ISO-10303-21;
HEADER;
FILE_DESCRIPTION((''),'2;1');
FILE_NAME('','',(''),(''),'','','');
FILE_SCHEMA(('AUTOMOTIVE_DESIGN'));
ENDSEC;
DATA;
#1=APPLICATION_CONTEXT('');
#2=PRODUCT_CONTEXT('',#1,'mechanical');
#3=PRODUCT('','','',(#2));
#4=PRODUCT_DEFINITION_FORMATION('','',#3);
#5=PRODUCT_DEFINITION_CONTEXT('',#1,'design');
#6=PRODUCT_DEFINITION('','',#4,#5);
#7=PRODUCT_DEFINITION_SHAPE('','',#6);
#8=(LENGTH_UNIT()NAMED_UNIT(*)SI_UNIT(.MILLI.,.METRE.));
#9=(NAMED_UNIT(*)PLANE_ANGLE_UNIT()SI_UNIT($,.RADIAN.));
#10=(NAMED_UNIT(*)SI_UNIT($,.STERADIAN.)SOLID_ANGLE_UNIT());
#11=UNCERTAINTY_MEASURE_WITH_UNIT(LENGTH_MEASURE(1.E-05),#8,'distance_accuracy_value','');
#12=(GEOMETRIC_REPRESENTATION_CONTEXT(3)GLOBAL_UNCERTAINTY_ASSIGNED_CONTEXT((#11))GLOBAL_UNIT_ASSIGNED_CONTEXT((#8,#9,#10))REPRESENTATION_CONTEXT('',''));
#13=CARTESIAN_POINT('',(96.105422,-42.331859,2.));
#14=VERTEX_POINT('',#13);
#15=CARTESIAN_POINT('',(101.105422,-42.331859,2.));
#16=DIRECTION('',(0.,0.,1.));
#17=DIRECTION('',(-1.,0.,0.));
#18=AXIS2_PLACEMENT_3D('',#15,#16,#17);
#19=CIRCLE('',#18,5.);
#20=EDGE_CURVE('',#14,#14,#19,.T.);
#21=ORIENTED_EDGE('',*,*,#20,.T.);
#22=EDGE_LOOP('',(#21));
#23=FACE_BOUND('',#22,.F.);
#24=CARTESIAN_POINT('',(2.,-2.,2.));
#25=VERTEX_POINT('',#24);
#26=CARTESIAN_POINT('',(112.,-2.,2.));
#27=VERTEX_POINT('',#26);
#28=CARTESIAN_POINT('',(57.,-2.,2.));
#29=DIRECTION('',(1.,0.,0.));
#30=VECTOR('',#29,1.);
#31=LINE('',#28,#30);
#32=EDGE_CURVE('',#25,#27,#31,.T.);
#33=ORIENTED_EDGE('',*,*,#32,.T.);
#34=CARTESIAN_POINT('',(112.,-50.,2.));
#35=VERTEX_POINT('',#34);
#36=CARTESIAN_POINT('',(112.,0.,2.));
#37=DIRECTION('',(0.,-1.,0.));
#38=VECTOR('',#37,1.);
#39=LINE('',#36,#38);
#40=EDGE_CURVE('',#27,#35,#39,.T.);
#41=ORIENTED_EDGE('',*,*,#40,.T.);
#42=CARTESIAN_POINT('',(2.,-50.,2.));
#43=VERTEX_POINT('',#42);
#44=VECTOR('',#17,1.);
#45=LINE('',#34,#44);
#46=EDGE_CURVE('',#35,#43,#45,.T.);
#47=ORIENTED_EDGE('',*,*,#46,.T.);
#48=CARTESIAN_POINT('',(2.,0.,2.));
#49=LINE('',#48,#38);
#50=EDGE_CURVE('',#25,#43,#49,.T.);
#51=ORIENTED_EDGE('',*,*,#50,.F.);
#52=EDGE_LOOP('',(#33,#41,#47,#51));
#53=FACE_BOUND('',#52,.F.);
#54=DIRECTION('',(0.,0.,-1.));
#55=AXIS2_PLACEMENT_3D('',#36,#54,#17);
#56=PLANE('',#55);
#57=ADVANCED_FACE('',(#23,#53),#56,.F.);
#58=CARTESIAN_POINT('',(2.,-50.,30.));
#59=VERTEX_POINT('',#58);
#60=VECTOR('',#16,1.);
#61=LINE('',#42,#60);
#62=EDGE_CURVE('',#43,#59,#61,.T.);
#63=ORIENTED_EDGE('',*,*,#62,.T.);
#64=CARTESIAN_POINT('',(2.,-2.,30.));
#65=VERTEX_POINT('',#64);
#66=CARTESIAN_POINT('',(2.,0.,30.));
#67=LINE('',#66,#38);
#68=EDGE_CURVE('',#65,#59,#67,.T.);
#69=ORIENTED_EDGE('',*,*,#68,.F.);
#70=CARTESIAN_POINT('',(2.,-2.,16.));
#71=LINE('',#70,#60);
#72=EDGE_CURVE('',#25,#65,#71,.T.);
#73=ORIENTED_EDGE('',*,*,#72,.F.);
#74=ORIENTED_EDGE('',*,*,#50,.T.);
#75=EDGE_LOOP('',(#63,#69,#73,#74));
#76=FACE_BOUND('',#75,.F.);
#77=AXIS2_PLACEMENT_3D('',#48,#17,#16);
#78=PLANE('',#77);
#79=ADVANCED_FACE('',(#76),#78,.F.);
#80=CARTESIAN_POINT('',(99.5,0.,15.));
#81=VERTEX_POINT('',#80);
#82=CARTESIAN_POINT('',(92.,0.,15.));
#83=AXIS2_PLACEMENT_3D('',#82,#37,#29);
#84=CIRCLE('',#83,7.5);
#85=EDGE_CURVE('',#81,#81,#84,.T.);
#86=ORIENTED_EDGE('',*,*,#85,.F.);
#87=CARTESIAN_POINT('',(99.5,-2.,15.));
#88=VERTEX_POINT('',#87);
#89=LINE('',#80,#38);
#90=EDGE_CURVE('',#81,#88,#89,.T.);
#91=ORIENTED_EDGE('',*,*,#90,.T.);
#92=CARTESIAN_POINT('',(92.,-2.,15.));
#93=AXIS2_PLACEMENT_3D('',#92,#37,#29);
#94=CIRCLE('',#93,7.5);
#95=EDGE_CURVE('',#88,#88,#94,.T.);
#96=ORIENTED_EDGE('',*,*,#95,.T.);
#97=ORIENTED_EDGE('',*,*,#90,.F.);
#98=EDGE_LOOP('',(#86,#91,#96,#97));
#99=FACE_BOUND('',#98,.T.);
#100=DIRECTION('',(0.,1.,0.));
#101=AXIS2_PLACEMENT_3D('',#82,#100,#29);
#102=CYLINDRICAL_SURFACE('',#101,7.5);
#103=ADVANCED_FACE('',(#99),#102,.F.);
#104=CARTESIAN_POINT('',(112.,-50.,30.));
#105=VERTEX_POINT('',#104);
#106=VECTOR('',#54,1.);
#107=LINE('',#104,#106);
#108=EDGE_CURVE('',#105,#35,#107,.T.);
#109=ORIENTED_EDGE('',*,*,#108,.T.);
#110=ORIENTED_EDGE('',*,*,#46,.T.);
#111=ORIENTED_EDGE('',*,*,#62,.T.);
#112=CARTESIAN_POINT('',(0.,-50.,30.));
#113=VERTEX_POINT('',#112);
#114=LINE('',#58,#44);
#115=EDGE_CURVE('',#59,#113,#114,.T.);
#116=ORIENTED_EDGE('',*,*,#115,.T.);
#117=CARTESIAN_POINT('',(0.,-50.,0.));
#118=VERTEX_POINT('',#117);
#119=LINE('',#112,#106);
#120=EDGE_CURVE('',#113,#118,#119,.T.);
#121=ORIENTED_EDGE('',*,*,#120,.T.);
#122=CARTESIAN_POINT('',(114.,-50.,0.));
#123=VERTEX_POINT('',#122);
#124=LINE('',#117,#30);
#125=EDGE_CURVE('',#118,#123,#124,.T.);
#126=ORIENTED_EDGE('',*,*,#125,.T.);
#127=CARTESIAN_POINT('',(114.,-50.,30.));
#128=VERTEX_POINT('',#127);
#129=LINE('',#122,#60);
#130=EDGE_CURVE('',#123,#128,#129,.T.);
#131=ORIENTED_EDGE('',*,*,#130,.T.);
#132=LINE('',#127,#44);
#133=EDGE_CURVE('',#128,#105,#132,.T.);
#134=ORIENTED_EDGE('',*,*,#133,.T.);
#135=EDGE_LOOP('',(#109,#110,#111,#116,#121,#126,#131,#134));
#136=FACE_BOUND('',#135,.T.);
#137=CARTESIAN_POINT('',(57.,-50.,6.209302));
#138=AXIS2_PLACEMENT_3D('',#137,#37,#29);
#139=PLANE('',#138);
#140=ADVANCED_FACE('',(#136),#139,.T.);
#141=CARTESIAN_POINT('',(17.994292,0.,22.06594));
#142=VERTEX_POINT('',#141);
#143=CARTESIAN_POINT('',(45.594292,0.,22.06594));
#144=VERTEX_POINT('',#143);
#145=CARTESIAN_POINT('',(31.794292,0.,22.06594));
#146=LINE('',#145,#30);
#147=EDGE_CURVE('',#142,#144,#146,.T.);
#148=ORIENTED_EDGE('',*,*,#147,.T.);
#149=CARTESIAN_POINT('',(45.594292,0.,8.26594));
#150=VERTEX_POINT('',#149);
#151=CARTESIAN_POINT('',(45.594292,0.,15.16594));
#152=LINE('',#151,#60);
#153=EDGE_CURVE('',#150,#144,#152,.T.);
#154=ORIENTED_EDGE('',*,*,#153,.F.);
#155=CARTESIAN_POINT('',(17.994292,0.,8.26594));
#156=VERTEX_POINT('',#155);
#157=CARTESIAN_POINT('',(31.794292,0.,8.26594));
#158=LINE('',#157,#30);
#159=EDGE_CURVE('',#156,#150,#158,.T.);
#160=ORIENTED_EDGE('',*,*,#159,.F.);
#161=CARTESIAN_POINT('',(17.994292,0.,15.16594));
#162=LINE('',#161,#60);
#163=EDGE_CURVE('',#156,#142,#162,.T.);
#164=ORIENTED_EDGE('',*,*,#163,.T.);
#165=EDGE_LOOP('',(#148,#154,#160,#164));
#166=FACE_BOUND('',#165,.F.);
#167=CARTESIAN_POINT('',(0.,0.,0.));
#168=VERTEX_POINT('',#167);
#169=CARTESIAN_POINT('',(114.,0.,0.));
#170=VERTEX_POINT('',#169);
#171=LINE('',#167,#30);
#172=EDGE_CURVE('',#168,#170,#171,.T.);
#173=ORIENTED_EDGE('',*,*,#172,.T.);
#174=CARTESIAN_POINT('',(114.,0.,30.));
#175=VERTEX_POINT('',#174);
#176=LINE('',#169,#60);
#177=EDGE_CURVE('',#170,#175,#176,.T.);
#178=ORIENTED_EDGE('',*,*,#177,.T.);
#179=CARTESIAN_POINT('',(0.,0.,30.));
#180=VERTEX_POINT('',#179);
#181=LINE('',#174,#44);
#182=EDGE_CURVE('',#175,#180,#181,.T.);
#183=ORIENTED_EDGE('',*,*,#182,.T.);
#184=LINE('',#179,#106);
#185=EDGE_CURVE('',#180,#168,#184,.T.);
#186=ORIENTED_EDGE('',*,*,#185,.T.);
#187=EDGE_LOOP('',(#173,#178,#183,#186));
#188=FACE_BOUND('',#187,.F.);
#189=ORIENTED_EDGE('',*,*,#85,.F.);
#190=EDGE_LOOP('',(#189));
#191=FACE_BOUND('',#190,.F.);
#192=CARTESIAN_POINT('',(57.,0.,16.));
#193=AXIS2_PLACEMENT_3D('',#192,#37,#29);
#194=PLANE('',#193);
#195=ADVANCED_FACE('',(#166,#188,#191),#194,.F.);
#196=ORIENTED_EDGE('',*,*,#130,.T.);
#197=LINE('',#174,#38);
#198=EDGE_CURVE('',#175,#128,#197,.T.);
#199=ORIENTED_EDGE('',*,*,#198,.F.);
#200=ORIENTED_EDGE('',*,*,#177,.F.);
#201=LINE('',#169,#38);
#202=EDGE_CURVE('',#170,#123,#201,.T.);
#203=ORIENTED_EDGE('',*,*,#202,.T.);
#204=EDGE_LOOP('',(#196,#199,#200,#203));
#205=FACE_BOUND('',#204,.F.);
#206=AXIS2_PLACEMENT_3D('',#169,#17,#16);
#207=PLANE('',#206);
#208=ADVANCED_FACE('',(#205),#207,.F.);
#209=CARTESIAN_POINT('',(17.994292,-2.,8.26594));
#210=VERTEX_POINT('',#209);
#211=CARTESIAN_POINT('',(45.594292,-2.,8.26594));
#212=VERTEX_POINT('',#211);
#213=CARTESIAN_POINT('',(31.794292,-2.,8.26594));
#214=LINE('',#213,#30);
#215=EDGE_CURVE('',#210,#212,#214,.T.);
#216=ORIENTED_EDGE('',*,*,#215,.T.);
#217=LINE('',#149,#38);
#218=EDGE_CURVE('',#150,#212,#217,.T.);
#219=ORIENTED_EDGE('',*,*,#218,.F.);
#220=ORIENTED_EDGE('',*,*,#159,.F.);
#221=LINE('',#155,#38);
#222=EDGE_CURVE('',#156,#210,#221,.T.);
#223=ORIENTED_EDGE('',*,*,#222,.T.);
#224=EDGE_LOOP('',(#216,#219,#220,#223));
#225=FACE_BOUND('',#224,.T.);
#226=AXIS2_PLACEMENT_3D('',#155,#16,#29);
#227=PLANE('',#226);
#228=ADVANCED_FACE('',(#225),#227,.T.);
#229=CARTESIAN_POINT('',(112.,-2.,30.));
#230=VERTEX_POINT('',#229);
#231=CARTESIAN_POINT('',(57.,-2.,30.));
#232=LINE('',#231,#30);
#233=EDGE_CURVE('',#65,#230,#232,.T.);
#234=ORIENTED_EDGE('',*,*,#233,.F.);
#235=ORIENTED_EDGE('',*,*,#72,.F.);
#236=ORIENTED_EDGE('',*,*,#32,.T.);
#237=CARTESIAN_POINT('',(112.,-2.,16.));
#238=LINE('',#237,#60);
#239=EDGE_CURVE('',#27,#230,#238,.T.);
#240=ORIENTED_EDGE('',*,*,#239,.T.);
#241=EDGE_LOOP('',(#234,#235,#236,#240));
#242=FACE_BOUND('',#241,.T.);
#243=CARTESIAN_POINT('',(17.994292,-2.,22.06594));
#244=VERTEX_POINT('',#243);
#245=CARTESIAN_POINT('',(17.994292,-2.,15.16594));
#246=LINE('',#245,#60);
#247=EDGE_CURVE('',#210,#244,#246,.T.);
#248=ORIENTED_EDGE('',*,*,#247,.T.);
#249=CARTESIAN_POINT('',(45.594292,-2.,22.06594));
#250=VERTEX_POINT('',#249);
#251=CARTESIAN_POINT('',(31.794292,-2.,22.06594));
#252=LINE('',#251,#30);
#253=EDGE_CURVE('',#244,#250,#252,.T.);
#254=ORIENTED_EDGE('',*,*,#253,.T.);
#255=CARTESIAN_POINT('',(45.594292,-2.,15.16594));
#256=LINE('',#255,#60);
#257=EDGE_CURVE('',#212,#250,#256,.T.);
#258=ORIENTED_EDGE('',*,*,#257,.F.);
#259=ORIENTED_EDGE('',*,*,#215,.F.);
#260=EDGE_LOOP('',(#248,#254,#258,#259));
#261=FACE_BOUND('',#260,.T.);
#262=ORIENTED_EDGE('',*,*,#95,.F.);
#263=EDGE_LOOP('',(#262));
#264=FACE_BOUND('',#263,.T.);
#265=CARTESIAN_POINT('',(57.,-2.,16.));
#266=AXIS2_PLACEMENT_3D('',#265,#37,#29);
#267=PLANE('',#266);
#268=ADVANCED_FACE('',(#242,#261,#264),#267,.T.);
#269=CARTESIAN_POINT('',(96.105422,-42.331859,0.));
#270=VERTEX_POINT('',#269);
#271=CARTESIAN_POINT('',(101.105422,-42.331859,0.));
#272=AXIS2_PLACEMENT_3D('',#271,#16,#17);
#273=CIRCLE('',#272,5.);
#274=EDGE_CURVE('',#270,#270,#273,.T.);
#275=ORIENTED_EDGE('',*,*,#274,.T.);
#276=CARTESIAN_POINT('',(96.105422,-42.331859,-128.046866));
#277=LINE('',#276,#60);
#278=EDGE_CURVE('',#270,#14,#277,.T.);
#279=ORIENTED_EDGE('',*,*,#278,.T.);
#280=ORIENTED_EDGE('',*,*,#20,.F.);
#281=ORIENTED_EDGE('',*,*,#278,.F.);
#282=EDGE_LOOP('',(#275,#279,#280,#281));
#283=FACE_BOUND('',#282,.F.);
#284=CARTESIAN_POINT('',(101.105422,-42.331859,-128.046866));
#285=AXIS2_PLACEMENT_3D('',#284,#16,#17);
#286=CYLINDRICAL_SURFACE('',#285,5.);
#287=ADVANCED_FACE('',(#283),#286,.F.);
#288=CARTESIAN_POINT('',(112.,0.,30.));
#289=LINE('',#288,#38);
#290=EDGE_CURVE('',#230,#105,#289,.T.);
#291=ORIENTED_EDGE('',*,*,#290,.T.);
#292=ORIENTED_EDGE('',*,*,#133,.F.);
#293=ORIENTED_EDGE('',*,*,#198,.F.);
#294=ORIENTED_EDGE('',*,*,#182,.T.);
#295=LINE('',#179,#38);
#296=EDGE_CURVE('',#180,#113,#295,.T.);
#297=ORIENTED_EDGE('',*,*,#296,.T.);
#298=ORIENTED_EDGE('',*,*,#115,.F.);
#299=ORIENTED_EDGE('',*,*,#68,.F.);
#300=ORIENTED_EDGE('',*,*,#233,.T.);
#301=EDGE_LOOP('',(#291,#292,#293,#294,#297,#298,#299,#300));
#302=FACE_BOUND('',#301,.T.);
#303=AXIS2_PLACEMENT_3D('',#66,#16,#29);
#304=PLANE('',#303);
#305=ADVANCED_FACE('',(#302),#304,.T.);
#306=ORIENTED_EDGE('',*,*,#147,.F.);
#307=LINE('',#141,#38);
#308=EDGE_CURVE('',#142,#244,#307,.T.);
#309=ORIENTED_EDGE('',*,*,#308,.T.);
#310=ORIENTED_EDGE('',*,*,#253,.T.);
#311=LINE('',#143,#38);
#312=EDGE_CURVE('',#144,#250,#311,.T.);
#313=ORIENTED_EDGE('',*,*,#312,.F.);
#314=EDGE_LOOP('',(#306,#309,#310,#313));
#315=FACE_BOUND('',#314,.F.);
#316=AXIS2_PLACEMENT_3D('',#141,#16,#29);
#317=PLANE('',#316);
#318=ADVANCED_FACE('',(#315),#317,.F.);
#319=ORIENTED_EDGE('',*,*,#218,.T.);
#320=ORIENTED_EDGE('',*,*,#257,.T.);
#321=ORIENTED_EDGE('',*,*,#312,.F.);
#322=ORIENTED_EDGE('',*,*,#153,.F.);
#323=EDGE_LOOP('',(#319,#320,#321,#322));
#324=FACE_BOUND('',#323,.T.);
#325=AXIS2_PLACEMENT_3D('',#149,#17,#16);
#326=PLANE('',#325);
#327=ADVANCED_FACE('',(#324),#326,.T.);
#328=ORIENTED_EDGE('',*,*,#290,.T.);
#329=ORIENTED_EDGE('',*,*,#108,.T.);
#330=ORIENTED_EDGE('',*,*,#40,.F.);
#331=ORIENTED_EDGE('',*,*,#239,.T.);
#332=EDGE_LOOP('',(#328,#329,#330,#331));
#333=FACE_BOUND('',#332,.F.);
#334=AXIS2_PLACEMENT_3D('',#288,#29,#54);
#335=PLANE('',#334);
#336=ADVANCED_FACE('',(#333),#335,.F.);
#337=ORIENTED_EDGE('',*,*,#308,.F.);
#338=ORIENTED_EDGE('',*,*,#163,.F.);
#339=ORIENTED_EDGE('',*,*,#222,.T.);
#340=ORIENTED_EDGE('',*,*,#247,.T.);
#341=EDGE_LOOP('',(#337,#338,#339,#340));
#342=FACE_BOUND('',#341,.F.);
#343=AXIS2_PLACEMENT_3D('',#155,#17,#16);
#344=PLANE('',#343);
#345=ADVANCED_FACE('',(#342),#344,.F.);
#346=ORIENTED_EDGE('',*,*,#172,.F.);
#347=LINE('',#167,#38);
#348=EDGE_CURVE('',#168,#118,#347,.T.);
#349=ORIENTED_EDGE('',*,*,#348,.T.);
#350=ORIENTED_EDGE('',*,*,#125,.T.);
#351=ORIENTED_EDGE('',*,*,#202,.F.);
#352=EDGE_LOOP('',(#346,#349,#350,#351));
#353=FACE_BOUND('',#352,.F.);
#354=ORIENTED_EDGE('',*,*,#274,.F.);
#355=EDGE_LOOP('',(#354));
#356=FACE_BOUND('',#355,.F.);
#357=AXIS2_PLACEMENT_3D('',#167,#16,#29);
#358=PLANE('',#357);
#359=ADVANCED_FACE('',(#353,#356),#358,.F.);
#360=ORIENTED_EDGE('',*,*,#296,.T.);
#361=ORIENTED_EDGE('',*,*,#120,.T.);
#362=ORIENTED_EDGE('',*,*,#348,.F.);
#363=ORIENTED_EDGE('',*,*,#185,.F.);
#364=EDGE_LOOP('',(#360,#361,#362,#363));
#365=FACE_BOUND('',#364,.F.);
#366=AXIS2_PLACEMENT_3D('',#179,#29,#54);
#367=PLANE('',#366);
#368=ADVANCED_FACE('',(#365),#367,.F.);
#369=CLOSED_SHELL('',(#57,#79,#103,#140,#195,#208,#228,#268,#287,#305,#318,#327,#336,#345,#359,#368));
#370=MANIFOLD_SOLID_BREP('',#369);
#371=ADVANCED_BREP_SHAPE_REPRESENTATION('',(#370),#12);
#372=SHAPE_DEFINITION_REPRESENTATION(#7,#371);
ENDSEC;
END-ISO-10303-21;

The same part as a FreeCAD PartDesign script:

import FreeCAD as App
import Part
import Sketcher
from FreeCAD import Vector
Q = App.Units.Quantity

doc = App.newDocument("Part")
body = doc.addObject("PartDesign::Body", "Body")

sketch1 = doc.addObject("Sketcher::SketchObject", "Sketch")
body.addObject(sketch1)
sketch1.AttachmentSupport = (doc.XZ_Plane, [""])
sketch1.MapMode = "FlatFace"
sketch1.addGeometry([
    Part.LineSegment(Vector(0, 30, 0), Vector(0, 0, 0)),
    Part.LineSegment(Vector(0, 0, 0), Vector(114, 0, 0)),
    Part.LineSegment(Vector(114, 0, 0), Vector(114, 30, 0)),
    Part.LineSegment(Vector(114, 30, 0), Vector(112, 30, 0)),
    Part.LineSegment(Vector(112, 30, 0), Vector(112, 2, 0)),
    Part.LineSegment(Vector(112, 2, 0), Vector(2, 2, 0)),
    Part.LineSegment(Vector(2, 2, 0), Vector(2, 30, 0)),
    Part.LineSegment(Vector(2, 30, 0), Vector(0, 30, 0)),
], False)
sketch1.addConstraint([
    Sketcher.Constraint("Coincident", 0, 2, 1, 1),
    Sketcher.Constraint("Coincident", 1, 2, 2, 1),
    Sketcher.Constraint("Coincident", 2, 2, 3, 1),
    Sketcher.Constraint("Coincident", 3, 2, 4, 1),
    Sketcher.Constraint("Coincident", 4, 2, 5, 1),
    Sketcher.Constraint("Coincident", 5, 2, 6, 1),
    Sketcher.Constraint("Coincident", 6, 2, 7, 1),
    Sketcher.Constraint("Coincident", 7, 2, 0, 1),
    Sketcher.Constraint("Vertical", 0),
    Sketcher.Constraint("Horizontal", 1),
    Sketcher.Constraint("Vertical", 2),
    Sketcher.Constraint("Horizontal", 3),
    Sketcher.Constraint("Vertical", 4),
    Sketcher.Constraint("Horizontal", 5),
    Sketcher.Constraint("Vertical", 6),
    Sketcher.Constraint("Horizontal", 7),
    Sketcher.Constraint("Coincident", 0, 2, -1, 1),
    Sketcher.Constraint("Horizontal", 3, 2, 6, 2),
    Sketcher.Constraint("Equal", 3, 7),
    Sketcher.Constraint("DistanceX", 1, 1, 1, 2, Q("114 mm")),
    Sketcher.Constraint("DistanceX", 3, 2, 3, 1, Q("2 mm")),
    Sketcher.Constraint("DistanceY", 0, 2, 0, 1, Q("30 mm")),
    Sketcher.Constraint("DistanceY", 4, 2, 4, 1, Q("28 mm")),
])
pad1 = doc.addObject("PartDesign::Pad", "Pad")
body.addObject(pad1)
pad1.Profile = sketch1
pad1.Length = 50

sketch2 = doc.addObject("Sketcher::SketchObject", "Sketch001")
body.addObject(sketch2)
sketch2.AttachmentSupport = (doc.XZ_Plane, [""])
sketch2.MapMode = "FlatFace"
sketch2.addGeometry([
    Part.LineSegment(Vector(2, 30, 0), Vector(2, 2, 0)),
    Part.LineSegment(Vector(2, 2, 0), Vector(112, 2, 0)),
    Part.LineSegment(Vector(112, 2, 0), Vector(112, 30, 0)),
    Part.LineSegment(Vector(112, 30, 0), Vector(2, 30, 0)),
    Part.LineSegment(Vector(46, 8, 0), Vector(18, 8, 0)),
    Part.LineSegment(Vector(18, 8, 0), Vector(18, 22, 0)),
    Part.LineSegment(Vector(18, 22, 0), Vector(46, 22, 0)),
    Part.LineSegment(Vector(46, 22, 0), Vector(46, 8, 0)),
    Part.Circle(Vector(92, 15, 0), Vector(0, 0, 1), 8),
], False)
sketch2.addConstraint([
    Sketcher.Constraint("Coincident", 0, 2, 1, 1),
    Sketcher.Constraint("Coincident", 1, 2, 2, 1),
    Sketcher.Constraint("Coincident", 2, 2, 3, 1),
    Sketcher.Constraint("Coincident", 3, 2, 0, 1),
    Sketcher.Constraint("Coincident", 4, 2, 5, 1),
    Sketcher.Constraint("Coincident", 5, 2, 6, 1),
    Sketcher.Constraint("Coincident", 6, 2, 7, 1),
    Sketcher.Constraint("Coincident", 7, 2, 4, 1),
    Sketcher.Constraint("Vertical", 0),
    Sketcher.Constraint("Horizontal", 1),
    Sketcher.Constraint("Vertical", 2),
    Sketcher.Constraint("Horizontal", 3),
    Sketcher.Constraint("Horizontal", 4),
    Sketcher.Constraint("Vertical", 5),
    Sketcher.Constraint("Horizontal", 6),
    Sketcher.Constraint("Vertical", 7),
    Sketcher.Constraint("Diameter", 8, Q("15 mm")),
    Sketcher.Constraint("DistanceX", 1, 1, 1, 2, Q("110 mm")),
    Sketcher.Constraint("DistanceY", 0, 2, 0, 1, Q("28 mm")),
    Sketcher.Constraint("DistanceX", 4, 2, 4, 1, Q("27.6 mm")),
    Sketcher.Constraint("DistanceY", 5, 1, 5, 2, Q("13.8 mm")),
    Sketcher.Constraint("DistanceX", -1, 1, 8, 3, Q("92 mm")),
    Sketcher.Constraint("DistanceY", -1, 1, 8, 3, Q("15 mm")),
    Sketcher.Constraint("DistanceX", -1, 1, 0, 2, Q("2 mm")),
    Sketcher.Constraint("DistanceY", -1, 1, 0, 2, Q("2 mm")),
    Sketcher.Constraint("DistanceY", -1, 1, 4, 2, Q("8.26594 mm")),
    Sketcher.Constraint("DistanceX", 4, 2, 8, 3, Q("74.005708 mm")),
])
pad2 = doc.addObject("PartDesign::Pad", "Pad001")
body.addObject(pad2)
pad2.Profile = sketch2
pad2.Length = 2

sketch3 = doc.addObject("Sketcher::SketchObject", "Sketch002")
body.addObject(sketch3)
sketch3.AttachmentSupport = (doc.XY_Plane, [""])
sketch3.MapMode = "FlatFace"
sketch3.addGeometry(Part.Circle(Vector(101, -42, 0), Vector(0, 0, 1), 5), False)
sketch3.addConstraint([
    Sketcher.Constraint("Diameter", 0, Q("10 mm")),
    Sketcher.Constraint("DistanceX", -1, 1, 0, 3, Q("101.105422 mm")),
    Sketcher.Constraint("DistanceY", 0, 3, -1, 1, Q("42.331859 mm")),
])
doc.recompute()
hole = doc.addObject("PartDesign::Hole", "Hole")
body.addObject(hole)
hole.Profile = sketch3
hole.ThreadType = "None"
hole.Diameter = 10
hole.DepthType = "ThroughAll"
hole.Reversed = True

doc.recompute()
